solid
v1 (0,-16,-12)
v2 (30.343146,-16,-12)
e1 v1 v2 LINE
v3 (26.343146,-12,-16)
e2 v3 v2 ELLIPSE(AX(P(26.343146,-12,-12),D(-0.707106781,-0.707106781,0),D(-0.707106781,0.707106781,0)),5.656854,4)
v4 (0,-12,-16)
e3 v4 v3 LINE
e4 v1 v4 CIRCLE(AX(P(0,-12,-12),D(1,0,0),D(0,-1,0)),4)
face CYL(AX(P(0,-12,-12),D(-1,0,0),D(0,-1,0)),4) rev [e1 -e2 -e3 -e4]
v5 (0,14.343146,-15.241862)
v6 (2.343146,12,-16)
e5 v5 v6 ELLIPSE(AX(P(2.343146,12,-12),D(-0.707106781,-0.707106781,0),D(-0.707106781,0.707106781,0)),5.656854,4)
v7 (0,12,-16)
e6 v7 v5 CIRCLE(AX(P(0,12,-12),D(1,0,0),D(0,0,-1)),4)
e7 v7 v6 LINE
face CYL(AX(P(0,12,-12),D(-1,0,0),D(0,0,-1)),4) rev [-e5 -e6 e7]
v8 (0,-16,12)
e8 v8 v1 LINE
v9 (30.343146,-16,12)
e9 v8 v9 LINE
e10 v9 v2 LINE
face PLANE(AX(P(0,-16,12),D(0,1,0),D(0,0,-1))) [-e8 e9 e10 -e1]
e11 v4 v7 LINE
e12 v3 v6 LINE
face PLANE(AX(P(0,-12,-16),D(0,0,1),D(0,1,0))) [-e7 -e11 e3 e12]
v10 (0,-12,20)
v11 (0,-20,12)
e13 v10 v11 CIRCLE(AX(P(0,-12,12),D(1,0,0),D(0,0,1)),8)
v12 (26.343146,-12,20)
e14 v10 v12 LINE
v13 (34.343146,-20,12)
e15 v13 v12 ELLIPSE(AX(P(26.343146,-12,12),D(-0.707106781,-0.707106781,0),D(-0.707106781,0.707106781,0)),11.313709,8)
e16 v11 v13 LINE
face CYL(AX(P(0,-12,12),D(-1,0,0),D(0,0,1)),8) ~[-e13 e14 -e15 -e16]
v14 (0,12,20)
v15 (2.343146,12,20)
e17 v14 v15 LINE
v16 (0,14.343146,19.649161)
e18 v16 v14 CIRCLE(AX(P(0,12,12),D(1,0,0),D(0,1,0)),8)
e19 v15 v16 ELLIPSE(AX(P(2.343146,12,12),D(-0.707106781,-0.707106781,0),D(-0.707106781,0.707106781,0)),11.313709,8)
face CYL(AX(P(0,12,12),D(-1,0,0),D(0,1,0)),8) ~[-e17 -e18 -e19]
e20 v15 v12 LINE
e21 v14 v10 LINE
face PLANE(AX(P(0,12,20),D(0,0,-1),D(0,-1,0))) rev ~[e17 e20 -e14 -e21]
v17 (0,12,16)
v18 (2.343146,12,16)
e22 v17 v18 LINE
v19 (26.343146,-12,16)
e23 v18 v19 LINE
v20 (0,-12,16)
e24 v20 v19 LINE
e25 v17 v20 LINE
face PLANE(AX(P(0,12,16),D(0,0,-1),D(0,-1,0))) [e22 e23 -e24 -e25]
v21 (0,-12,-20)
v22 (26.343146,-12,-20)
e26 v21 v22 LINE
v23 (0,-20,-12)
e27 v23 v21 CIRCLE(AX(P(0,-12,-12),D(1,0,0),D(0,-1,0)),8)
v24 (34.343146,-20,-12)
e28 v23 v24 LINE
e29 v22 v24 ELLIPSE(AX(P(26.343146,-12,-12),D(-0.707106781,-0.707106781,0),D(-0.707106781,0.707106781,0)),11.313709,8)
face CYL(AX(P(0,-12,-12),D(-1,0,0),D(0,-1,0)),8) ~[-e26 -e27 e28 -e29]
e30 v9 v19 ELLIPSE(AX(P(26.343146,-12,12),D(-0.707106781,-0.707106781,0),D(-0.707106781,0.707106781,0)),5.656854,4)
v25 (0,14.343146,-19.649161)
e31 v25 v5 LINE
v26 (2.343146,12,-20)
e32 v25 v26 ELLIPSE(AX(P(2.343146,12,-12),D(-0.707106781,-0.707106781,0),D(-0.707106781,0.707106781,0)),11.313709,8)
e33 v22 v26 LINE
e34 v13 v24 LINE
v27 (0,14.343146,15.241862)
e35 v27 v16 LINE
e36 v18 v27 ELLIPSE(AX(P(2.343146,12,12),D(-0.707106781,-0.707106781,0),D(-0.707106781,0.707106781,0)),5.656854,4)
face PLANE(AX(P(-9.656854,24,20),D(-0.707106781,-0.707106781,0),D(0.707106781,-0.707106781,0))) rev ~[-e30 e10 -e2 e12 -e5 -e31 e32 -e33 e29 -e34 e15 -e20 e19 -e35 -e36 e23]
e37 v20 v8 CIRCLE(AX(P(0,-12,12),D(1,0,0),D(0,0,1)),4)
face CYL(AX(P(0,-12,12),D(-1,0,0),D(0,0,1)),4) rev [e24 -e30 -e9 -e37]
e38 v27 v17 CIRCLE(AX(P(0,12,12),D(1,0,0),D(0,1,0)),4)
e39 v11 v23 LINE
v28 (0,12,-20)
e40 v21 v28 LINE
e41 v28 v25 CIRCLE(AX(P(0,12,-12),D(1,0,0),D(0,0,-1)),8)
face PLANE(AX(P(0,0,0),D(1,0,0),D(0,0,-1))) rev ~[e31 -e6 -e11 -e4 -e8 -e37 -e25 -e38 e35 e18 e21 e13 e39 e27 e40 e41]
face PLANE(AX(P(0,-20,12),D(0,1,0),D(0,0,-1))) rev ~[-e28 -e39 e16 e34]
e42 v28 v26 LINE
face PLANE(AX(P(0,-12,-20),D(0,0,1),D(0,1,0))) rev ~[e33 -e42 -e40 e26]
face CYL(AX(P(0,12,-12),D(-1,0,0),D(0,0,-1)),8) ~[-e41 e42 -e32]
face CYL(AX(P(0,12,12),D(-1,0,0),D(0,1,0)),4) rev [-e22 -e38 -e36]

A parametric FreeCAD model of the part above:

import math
import FreeCAD as App
import Part
import Sketcher
from FreeCAD import Vector

doc = App.newDocument("Part")
body = doc.addObject("PartDesign::Body", "Body")

sketch1 = body.newObject("Sketcher::SketchObject", "Sketch")
sketch1.AttachmentSupport = (doc.getObject("YZ_Plane"), [""])
sketch1.MapMode = "FlatFace"
sketch1.addGeometry(Part.LineSegment(Vector(-20, 12, 0), Vector(-20, -12, 0)), False)
sketch1.addGeometry(Part.ArcOfCircle(Part.Circle(Vector(-12, -12, 0), Vector(0, 0, 1), 8), math.radians(-180), math.radians(-90)), False)
sketch1.addGeometry(Part.LineSegment(Vector(-12, -20, 0), Vector(12, -20, 0)), False)
sketch1.addGeometry(Part.ArcOfCircle(Part.Circle(Vector(12, -12, 0), Vector(0, 0, 1), 8), math.radians(-90), math.radians(0)), False)
sketch1.addGeometry(Part.LineSegment(Vector(20, -12, 0), Vector(20, 12, 0)), False)
sketch1.addGeometry(Part.ArcOfCircle(Part.Circle(Vector(12, 12, 0), Vector(0, 0, 1), 8), math.radians(0), math.radians(90)), False)
sketch1.addGeometry(Part.LineSegment(Vector(12, 20, 0), Vector(-12, 20, 0)), False)
sketch1.addGeometry(Part.ArcOfCircle(Part.Circle(Vector(-12, 12, 0), Vector(0, 0, 1), 8), math.radians(90), math.radians(180)), False)
sketch1.addGeometry(Part.LineSegment(Vector(-16, -12, 0), Vector(-16, 12, 0)), False)
sketch1.addGeometry(Part.ArcOfCircle(Part.Circle(Vector(-12, 12, 0), Vector(0, 0, 1), 4), math.radians(90), math.radians(180)), False)
sketch1.addGeometry(Part.LineSegment(Vector(-12, 16, 0), Vector(12, 16, 0)), False)
sketch1.addGeometry(Part.ArcOfCircle(Part.Circle(Vector(12, 12, 0), Vector(0, 0, 1), 4), math.radians(0), math.radians(90)), False)
sketch1.addGeometry(Part.LineSegment(Vector(16, 12, 0), Vector(16, -12, 0)), False)
sketch1.addGeometry(Part.ArcOfCircle(Part.Circle(Vector(12, -12, 0), Vector(0, 0, 1), 4), math.radians(-90), math.radians(0)), False)
sketch1.addGeometry(Part.LineSegment(Vector(12, -16, 0), Vector(-12, -16, 0)), False)
sketch1.addGeometry(Part.ArcOfCircle(Part.Circle(Vector(-12, -12, 0), Vector(0, 0, 1), 4), math.radians(180), math.radians(270)), False)
sketch1.addConstraint(Sketcher.Constraint("Tangent", 0, 2, 1, 1))
sketch1.addConstraint(Sketcher.Constraint("Tangent", 1, 2, 2, 1))
sketch1.addConstraint(Sketcher.Constraint("Tangent", 2, 2, 3, 1))
sketch1.addConstraint(Sketcher.Constraint("Tangent", 3, 2, 4, 1))
sketch1.addConstraint(Sketcher.Constraint("Tangent", 4, 2, 5, 1))
sketch1.addConstraint(Sketcher.Constraint("Tangent", 5, 2, 6, 1))
sketch1.addConstraint(Sketcher.Constraint("Tangent", 6, 2, 7, 1))
sketch1.addConstraint(Sketcher.Constraint("Tangent", 7, 2, 0, 1))
sketch1.addConstraint(Sketcher.Constraint("Tangent", 8, 2, 9, 2))
sketch1.addConstraint(Sketcher.Constraint("Tangent", 9, 1, 10, 1))
sketch1.addConstraint(Sketcher.Constraint("Tangent", 10, 2, 11, 2))
sketch1.addConstraint(Sketcher.Constraint("Tangent", 11, 1, 12, 1))
sketch1.addConstraint(Sketcher.Constraint("Tangent", 12, 2, 13, 2))
sketch1.addConstraint(Sketcher.Constraint("Tangent", 13, 1, 14, 1))
sketch1.addConstraint(Sketcher.Constraint("Tangent", 14, 2, 15, 2))
sketch1.addConstraint(Sketcher.Constraint("Tangent", 15, 1, 8, 1))
sketch1.addConstraint(Sketcher.Constraint("Vertical", 0))
sketch1.addConstraint(Sketcher.Constraint("Horizontal", 2))
sketch1.addConstraint(Sketcher.Constraint("Vertical", 4))
sketch1.addConstraint(Sketcher.Constraint("Horizontal", 6))
sketch1.addConstraint(Sketcher.Constraint("Vertical", 8))
sketch1.addConstraint(Sketcher.Constraint("Horizontal", 10))
sketch1.addConstraint(Sketcher.Constraint("Vertical", 12))
sketch1.addConstraint(Sketcher.Constraint("Horizontal", 14))
sketch1.addConstraint(Sketcher.Constraint("Coincident", 9, 3, 7, 3))
sketch1.addConstraint(Sketcher.Constraint("Coincident", 11, 3, 5, 3))
sketch1.addConstraint(Sketcher.Constraint("Coincident", 13, 3, 3, 3))
sketch1.addConstraint(Sketcher.Constraint("Equal", 1, 3))
sketch1.addConstraint(Sketcher.Constraint("Equal", 3, 5))
sketch1.addConstraint(Sketcher.Constraint("Equal", 5, 7))
sketch1.addConstraint(Sketcher.Constraint("Equal", 13, 15))
sketch1.addConstraint(Sketcher.Constraint("Symmetric", 1, 3, 5, 3, -1, 1))
sketch1.addConstraint(Sketcher.Constraint("Equal", 14, 0))
sketch1.addConstraint(Sketcher.Constraint("Radius", 1, 8.0))
sketch1.addConstraint(Sketcher.Constraint("Radius", 9, 4.0))
sketch1.addConstraint(Sketcher.Constraint("DistanceX", 2, 1, 2, 2, 24.0))
pad1 = body.newObject("PartDesign::Pad", "Pad")
pad1.Profile = sketch1
pad1.Length = 40

sketch2 = body.newObject("Sketcher::SketchObject", "Sketch001")
sketch2.AttachmentSupport = (doc.getObject("XY_Plane"), [""])
sketch2.MapMode = "FlatFace"
sketch2.AttachmentOffset = App.Placement(Vector(0, 0, 20), App.Rotation())
sketch2.addGeometry(Part.LineSegment(Vector(-9.656854, 24, 0), Vector(44, -29.656854, 0)), False)
sketch2.addGeometry(Part.LineSegment(Vector(44, -29.656854, 0), Vector(44, 24, 0)), False)
sketch2.addGeometry(Part.LineSegment(Vector(44, 24, 0), Vector(-9.656854, 24, 0)), False)
sketch2.addConstraint(Sketcher.Constraint("Coincident", 0, 2, 1, 1))
sketch2.addConstraint(Sketcher.Constraint("Coincident", 1, 2, 2, 1))
sketch2.addConstraint(Sketcher.Constraint("Coincident", 2, 2, 0, 1))
sketch2.addConstraint(Sketcher.Constraint("Vertical", 1))
sketch2.addConstraint(Sketcher.Constraint("Horizontal", 2))
sketch2.addConstraint(Sketcher.Constraint("Equal", 2, 1))
sketch2.addConstraint(Sketcher.Constraint("DistanceX", -1, 1, 0, 2, 44.0))
sketch2.addConstraint(Sketcher.Constraint("DistanceY", -1, 1, 1, 2, 24.0))
sketch2.addConstraint(Sketcher.Constraint("Distance", 0, 75.882251))
pocket1 = body.newObject("PartDesign::Pocket", "Pocket")
pocket1.Profile = sketch2
pocket1.Length = 40

doc.recompute()
